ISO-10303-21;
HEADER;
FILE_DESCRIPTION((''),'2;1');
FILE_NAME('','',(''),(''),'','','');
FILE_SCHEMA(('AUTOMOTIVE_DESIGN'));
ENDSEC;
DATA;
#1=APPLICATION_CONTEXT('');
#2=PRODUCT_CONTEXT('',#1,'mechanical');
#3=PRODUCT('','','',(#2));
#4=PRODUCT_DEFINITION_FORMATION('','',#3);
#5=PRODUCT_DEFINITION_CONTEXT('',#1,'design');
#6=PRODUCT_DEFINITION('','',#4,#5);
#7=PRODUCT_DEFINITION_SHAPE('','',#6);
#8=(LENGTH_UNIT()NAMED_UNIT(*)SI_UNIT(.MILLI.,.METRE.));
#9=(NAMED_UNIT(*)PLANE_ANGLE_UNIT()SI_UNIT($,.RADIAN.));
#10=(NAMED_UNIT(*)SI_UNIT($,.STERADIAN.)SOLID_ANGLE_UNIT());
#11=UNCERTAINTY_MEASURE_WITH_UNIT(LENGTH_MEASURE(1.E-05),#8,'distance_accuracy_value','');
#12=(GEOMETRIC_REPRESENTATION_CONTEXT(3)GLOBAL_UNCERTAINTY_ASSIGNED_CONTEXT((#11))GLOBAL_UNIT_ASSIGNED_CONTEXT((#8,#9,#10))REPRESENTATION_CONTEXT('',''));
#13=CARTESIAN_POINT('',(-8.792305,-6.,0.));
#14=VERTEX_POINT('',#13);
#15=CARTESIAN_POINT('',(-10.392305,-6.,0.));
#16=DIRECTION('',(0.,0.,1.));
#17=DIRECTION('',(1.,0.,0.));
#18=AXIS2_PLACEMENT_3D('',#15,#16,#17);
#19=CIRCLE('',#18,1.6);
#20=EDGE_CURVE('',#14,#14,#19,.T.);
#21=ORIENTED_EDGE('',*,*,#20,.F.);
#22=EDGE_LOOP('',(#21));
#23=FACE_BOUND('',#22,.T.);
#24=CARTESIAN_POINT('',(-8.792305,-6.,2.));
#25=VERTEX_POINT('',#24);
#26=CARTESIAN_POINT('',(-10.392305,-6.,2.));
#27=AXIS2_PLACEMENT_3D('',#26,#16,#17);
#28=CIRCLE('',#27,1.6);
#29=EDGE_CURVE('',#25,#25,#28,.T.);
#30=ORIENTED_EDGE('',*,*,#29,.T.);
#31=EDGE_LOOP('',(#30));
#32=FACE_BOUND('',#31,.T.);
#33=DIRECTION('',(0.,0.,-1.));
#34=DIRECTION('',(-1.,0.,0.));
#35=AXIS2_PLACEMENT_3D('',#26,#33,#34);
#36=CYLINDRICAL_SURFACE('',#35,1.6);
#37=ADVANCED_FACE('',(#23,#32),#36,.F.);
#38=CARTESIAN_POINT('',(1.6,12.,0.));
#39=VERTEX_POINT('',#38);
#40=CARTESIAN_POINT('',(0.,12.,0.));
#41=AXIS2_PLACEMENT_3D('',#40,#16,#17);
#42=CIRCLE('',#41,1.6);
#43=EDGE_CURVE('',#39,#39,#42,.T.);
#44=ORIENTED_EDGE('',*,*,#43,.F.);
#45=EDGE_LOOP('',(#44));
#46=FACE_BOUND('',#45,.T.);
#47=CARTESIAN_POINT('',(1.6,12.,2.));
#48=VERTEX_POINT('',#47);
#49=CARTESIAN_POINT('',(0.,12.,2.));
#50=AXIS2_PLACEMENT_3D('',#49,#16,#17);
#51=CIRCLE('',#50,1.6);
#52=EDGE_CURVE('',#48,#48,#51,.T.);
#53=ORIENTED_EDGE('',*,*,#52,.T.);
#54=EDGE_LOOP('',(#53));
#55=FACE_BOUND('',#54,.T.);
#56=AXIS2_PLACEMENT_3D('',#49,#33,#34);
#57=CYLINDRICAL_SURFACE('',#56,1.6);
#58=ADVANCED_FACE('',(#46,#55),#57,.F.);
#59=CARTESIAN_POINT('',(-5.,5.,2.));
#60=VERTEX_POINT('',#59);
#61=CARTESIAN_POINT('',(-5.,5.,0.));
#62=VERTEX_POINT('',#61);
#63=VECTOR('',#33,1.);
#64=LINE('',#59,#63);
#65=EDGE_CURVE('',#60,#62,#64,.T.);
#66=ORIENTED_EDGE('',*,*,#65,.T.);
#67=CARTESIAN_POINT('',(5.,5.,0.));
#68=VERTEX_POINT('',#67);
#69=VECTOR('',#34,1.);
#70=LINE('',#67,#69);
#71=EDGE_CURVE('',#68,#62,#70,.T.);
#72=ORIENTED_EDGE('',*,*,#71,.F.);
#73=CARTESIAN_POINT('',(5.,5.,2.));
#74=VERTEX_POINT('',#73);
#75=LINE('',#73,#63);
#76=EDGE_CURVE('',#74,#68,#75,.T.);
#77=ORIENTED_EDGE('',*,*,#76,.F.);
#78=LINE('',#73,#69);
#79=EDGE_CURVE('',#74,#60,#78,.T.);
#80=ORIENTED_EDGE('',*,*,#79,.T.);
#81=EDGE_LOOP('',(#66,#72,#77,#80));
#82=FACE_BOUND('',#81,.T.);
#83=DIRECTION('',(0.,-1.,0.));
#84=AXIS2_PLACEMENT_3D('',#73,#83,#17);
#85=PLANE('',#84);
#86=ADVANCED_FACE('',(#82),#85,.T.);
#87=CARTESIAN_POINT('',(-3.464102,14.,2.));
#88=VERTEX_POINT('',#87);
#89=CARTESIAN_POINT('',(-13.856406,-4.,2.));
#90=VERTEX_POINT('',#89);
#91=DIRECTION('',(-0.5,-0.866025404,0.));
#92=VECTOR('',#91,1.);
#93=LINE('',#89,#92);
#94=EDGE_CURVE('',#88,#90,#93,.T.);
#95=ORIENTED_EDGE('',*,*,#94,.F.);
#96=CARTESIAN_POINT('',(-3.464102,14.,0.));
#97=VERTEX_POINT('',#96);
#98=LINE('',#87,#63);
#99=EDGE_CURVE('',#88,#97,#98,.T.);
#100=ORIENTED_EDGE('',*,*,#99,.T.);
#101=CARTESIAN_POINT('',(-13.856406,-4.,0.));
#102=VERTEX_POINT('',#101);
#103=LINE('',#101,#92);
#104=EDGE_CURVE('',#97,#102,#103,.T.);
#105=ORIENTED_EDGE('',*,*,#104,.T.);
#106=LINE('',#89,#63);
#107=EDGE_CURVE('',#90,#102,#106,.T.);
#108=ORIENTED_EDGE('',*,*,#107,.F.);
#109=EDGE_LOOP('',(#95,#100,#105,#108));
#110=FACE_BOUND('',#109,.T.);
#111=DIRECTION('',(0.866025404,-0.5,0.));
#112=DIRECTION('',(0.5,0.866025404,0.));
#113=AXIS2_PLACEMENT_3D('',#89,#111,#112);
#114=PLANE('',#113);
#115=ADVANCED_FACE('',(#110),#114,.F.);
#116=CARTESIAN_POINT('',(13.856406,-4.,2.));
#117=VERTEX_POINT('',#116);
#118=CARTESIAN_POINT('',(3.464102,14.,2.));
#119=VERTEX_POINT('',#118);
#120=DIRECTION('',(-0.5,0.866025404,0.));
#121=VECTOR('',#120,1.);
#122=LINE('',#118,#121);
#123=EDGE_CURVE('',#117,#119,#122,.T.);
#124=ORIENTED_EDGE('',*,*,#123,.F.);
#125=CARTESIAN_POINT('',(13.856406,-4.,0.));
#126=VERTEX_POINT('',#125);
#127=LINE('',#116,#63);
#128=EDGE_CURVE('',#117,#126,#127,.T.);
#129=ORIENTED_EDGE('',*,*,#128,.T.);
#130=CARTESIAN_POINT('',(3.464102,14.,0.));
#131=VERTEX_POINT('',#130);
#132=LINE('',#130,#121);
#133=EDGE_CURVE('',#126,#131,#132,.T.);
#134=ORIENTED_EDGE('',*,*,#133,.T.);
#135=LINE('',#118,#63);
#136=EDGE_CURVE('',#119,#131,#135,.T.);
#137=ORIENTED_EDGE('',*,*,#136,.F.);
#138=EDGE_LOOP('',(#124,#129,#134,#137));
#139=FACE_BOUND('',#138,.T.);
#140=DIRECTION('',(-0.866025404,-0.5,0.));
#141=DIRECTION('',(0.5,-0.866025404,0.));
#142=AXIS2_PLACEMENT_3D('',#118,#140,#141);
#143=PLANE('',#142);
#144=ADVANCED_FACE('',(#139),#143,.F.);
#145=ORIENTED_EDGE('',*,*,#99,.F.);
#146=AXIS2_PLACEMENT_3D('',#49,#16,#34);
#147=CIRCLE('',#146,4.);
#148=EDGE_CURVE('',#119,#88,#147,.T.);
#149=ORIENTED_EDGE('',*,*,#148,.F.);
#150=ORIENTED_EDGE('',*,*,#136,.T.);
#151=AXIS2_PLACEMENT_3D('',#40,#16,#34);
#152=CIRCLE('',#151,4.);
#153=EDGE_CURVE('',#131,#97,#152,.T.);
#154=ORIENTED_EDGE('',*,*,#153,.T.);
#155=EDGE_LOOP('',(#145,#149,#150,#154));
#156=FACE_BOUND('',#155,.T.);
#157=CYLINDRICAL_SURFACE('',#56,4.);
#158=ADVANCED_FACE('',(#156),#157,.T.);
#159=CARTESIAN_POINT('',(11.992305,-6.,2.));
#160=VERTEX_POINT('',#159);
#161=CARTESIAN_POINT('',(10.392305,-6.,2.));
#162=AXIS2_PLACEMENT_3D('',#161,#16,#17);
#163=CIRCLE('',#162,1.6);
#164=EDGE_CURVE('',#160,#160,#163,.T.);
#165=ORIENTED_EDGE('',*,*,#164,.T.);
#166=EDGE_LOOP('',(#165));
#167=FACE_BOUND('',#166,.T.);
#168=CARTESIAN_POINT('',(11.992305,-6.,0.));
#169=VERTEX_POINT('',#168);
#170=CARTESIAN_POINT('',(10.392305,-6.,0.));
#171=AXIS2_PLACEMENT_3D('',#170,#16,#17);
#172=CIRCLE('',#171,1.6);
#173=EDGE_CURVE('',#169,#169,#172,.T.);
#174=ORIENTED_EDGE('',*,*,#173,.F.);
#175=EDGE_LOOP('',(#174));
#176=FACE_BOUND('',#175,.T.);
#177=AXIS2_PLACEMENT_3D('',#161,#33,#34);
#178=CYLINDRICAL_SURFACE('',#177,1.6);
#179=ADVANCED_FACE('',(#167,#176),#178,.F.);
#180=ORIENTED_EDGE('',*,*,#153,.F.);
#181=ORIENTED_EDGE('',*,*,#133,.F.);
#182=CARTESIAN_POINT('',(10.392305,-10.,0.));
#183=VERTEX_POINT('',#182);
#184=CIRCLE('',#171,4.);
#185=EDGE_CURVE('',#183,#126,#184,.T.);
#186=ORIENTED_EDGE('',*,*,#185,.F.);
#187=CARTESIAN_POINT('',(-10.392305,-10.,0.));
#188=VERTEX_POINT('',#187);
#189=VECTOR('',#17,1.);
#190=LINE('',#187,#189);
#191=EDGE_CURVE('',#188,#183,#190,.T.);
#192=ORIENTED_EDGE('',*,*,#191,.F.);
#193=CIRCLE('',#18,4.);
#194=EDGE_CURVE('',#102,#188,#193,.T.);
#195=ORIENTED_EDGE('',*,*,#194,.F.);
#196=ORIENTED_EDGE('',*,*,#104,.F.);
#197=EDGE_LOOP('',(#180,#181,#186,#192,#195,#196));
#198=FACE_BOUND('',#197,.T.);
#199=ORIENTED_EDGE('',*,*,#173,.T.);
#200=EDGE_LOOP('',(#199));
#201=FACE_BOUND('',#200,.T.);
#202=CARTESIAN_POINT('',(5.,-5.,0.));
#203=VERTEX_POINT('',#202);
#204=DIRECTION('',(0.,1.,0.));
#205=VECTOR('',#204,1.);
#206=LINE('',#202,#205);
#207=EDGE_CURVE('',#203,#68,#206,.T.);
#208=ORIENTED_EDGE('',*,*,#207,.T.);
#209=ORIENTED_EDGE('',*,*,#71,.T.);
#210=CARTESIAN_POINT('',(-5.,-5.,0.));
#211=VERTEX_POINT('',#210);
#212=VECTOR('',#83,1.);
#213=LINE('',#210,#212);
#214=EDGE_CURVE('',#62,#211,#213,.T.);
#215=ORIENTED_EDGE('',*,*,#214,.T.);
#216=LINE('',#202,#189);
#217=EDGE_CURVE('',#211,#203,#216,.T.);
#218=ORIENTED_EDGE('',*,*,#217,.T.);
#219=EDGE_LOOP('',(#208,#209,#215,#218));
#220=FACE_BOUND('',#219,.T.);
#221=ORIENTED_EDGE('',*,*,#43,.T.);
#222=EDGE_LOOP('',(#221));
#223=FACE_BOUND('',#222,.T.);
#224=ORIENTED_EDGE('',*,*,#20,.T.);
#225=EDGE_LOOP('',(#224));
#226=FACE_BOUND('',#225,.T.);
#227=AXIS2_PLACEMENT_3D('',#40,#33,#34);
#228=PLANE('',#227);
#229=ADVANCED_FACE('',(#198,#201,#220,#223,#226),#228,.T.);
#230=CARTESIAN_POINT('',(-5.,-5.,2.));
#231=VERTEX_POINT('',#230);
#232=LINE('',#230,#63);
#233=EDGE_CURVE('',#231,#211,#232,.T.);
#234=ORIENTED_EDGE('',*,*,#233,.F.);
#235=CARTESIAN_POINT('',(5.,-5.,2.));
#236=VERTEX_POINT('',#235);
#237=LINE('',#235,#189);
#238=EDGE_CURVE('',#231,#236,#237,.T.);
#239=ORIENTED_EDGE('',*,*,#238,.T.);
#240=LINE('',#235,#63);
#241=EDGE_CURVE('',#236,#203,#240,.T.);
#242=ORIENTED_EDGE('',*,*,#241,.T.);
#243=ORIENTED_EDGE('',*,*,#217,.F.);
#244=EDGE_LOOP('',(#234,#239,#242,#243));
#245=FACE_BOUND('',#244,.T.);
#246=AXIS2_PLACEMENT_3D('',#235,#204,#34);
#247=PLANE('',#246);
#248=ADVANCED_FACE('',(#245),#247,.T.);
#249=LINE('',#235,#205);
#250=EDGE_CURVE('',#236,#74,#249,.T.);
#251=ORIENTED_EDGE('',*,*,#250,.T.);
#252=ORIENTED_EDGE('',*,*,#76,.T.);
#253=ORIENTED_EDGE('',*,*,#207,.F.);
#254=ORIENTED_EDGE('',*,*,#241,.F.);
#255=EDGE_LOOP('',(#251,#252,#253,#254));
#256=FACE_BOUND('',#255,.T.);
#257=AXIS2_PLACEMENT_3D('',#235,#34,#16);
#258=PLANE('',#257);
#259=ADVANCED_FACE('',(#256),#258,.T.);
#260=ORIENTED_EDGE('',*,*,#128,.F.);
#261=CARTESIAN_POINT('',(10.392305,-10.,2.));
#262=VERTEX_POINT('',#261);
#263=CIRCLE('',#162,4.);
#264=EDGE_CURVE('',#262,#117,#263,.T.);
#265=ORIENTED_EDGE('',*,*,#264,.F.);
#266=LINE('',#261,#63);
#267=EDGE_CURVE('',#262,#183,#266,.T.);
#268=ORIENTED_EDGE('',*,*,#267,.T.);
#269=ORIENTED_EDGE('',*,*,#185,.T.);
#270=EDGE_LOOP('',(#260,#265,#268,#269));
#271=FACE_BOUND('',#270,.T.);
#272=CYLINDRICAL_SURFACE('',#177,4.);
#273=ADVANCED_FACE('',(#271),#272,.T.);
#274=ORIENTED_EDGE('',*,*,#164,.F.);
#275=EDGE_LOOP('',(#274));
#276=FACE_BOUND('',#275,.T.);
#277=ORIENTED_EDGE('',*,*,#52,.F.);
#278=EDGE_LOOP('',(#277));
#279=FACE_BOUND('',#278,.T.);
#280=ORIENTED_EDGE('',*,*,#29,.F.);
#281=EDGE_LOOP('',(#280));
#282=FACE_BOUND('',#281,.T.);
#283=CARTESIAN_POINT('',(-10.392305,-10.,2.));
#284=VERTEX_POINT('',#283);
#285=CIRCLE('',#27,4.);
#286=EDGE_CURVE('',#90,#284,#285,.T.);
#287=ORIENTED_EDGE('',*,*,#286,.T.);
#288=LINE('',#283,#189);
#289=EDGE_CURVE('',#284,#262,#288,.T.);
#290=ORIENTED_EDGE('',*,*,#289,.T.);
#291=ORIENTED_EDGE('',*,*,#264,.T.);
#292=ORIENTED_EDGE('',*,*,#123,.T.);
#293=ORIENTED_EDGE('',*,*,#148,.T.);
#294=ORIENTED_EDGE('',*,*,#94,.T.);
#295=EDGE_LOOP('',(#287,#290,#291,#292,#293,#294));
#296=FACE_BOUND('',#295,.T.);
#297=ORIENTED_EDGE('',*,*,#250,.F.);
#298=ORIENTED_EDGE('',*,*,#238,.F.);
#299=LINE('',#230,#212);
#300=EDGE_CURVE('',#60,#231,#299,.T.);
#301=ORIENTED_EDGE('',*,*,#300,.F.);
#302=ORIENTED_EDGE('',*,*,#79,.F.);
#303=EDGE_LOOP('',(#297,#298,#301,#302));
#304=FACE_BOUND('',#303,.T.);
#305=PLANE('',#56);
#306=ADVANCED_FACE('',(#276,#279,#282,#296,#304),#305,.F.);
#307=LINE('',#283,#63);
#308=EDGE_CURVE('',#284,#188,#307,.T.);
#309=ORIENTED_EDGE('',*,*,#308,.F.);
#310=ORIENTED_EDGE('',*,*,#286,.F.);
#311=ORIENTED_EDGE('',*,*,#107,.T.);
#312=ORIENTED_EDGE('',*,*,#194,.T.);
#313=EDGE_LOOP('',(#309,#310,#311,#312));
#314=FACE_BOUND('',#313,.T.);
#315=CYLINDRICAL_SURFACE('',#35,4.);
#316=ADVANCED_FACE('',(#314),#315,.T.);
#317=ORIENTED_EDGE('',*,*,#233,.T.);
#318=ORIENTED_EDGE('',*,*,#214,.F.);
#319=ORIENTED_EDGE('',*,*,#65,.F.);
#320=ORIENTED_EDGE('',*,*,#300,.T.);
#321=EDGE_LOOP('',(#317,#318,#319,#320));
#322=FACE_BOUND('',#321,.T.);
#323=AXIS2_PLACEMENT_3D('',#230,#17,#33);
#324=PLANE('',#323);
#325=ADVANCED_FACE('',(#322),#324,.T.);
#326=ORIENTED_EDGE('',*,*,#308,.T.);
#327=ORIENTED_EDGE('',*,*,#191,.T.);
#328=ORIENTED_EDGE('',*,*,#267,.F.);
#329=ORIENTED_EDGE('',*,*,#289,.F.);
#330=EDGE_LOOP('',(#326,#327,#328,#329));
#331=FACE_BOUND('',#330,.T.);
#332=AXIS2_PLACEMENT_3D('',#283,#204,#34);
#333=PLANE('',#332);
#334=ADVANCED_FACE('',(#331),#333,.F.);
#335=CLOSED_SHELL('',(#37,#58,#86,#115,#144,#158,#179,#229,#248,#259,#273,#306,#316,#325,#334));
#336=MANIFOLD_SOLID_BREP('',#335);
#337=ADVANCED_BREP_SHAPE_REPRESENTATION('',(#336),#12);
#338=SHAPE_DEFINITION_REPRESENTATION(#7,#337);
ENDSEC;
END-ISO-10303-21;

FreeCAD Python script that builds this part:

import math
import FreeCAD as App
import Part
import Sketcher
from FreeCAD import Vector
Q = App.Units.Quantity


def add_polygon(sketch, points):
    """Adds a closed chain of lines whose ends are joined by coincident constraints."""
    first, n = sketch.GeometryCount, len(points)
    for a, b in zip(points, points[1:] + points[:1]):
        sketch.addGeometry(Part.LineSegment(App.Vector(*a, 0), App.Vector(*b, 0)), False)
    for i in range(n):
        sketch.addConstraint(Sketcher.Constraint("Coincident", first + i, 2, first + (i + 1) % n, 1))

doc = App.newDocument("Part")
body = doc.addObject("PartDesign::Body", "Body")

sketch1 = doc.addObject("Sketcher::SketchObject", "Sketch")
body.addObject(sketch1)
sketch1.AttachmentSupport = (doc.XY_Plane, [""])
sketch1.MapMode = "FlatFace"
sketch1.addGeometry(Part.LineSegment(Vector(-3.5, 14, 0), Vector(-13.9, -4, 0)), False)
sketch1.addGeometry(Part.ArcOfCircle(Part.Circle(Vector(-10.4, -6, 0), Vector(0, 0, 1), 4), math.radians(150), math.radians(270)), False)
sketch1.addGeometry(Part.LineSegment(Vector(-10.4, -10, 0), Vector(10.4, -10, 0)), False)
sketch1.addGeometry(Part.ArcOfCircle(Part.Circle(Vector(10.4, -6, 0), Vector(0, 0, 1), 4), math.radians(-90), math.radians(30)), False)
sketch1.addGeometry(Part.LineSegment(Vector(13.9, -4, 0), Vector(3.5, 14, 0)), False)
sketch1.addGeometry(Part.ArcOfCircle(Part.Circle(Vector(0, 12, 0), Vector(0, 0, 1), 4), math.radians(30), math.radians(150)), False)
sketch1.addGeometry(Part.Circle(Vector(10.4, -6, 0), Vector(0, 0, 1), 1.6), False)
sketch1.addGeometry(Part.Circle(Vector(-10.4, -6, 0), Vector(0, 0, 1), 1.6), False)
add_polygon(sketch1, [(-5, -5), (-5, 5), (5, 5), (5, -5)])
sketch1.addGeometry(Part.Circle(Vector(0, 12, 0), Vector(0, 0, 1), 1.6), False)
sketch1.addConstraint([
    Sketcher.Constraint("Tangent", 0, 2, 1, 1),
    Sketcher.Constraint("Tangent", 1, 2, 2, 1),
    Sketcher.Constraint("Tangent", 2, 2, 3, 1),
    Sketcher.Constraint("Tangent", 3, 2, 4, 1),
    Sketcher.Constraint("Tangent", 4, 2, 5, 1),
    Sketcher.Constraint("Tangent", 5, 2, 0, 1),
    Sketcher.Constraint("Horizontal", 2),
    Sketcher.Constraint("Vertical", 8),
    Sketcher.Constraint("Horizontal", 9),
    Sketcher.Constraint("Vertical", 10),
    Sketcher.Constraint("Horizontal", 11),
    Sketcher.Constraint("Coincident", 6, 3, 3, 3),
    Sketcher.Constraint("Coincident", 7, 3, 1, 3),
    Sketcher.Constraint("Coincident", 12, 3, 5, 3),
    Sketcher.Constraint("Equal", 1, 3),
    Sketcher.Constraint("Equal", 3, 5),
    Sketcher.Constraint("Equal", 6, 7),
    Sketcher.Constraint("Equal", 7, 12),
    Sketcher.Constraint("Symmetric", 8, 2, 10, 2, -1, 1),
    Sketcher.Constraint("Symmetric", 0, 2, 3, 2, -2),
    Sketcher.Constraint("Equal", 11, 8),
    Sketcher.Constraint("Radius", 1, Q("4 mm")),
    Sketcher.Constraint("Diameter", 6, Q("3.2 mm")),
    Sketcher.Constraint("DistanceX", 9, 1, 9, 2, Q("10 mm")),
    Sketcher.Constraint("Angle", 0, Q("-120 deg")),
    Sketcher.Constraint("DistanceY", 1, 3, -1, 1, Q("6 mm")),
    Sketcher.Constraint("DistanceY", -1, 1, 5, 3, Q("12 mm")),
])
pad1 = doc.addObject("PartDesign::Pad", "Pad")
body.addObject(pad1)
pad1.Profile = sketch1
pad1.Length = 2

doc.recompute()
